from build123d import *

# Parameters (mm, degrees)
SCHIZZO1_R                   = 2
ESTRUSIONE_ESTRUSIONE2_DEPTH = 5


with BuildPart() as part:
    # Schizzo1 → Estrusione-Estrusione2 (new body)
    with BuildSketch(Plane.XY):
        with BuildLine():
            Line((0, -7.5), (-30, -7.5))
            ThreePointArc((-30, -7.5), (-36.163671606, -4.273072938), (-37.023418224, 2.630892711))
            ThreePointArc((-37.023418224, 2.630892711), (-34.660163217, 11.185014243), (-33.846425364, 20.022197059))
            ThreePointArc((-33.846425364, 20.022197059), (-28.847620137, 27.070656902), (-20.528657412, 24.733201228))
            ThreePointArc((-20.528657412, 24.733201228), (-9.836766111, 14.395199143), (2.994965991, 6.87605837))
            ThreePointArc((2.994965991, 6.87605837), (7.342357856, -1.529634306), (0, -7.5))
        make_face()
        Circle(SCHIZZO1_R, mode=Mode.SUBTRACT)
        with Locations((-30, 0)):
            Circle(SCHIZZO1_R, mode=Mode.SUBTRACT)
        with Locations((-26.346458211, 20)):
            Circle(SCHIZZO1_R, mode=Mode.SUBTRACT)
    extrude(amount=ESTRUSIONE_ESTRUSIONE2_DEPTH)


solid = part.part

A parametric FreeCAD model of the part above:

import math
import FreeCAD as App
import Part
import Sketcher
from FreeCAD import Vector
Q = App.Units.Quantity

doc = App.newDocument("Part")
body = doc.addObject("PartDesign::Body", "Body")

# Sketch on XY plane
sketch1 = body.newObject("Sketcher::SketchObject", "Sketch")
sketch1.AttachmentSupport = (doc.getObject("XY_Plane"), [""])
sketch1.MapMode = "FlatFace"
sketch1.addGeometry([
    Part.LineSegment(Vector(-30, -7.5, 0), Vector(0, -7.5, 0)),  # 0
    Part.ArcOfCircle(Part.Circle(Vector(0, 0, 0), Vector(0, 0, 1), 7.5), math.radians(-90), math.radians(66.463775)),  # 1
    Part.ArcOfCircle(Part.Circle(Vector(27.953016, 64.176545, 0), Vector(0, 0, 1), 62.5), math.radians(-140.869155), math.radians(-113.536225)),  # 2
    Part.ArcOfCircle(Part.Circle(Vector(-26.346458, 20, 0), Vector(0, 0, 1), 7.5), math.radians(39.130845), math.radians(179.830427)),  # 3
    Part.ArcOfCircle(Part.Circle(Vector(-83.846206, 20.170177, 0), Vector(0, 0, 1), 50), math.radians(-20.535379), math.radians(-0.169573)),  # 4
    Part.ArcOfCircle(Part.Circle(Vector(-30, 0, 0), Vector(0, 0, 1), 7.5), math.radians(159.464621), math.radians(270)),  # 5
    Part.Circle(Vector(0, 0, 0), Vector(0, 0, 1), 2),  # 6
    Part.Circle(Vector(-30, 0, 0), Vector(0, 0, 1), 2),  # 7
    Part.Circle(Vector(-26.346458, 20, 0), Vector(0, 0, 1), 2),  # 8
], False)
sketch1.addConstraint([
    Sketcher.Constraint("Tangent", 0, 2, 1, 1),
    Sketcher.Constraint("Tangent", 1, 2, 2, 2),
    Sketcher.Constraint("Tangent", 2, 1, 3, 1),
    Sketcher.Constraint("Tangent", 3, 2, 4, 2),
    Sketcher.Constraint("Tangent", 4, 1, 5, 1),
    Sketcher.Constraint("Tangent", 5, 2, 0, 1),
    Sketcher.Constraint("Horizontal", 0),
    Sketcher.Constraint("Coincident", 1, 3, -1, 1),
    Sketcher.Constraint("Coincident", 6, 3, -1, 1),
    Sketcher.Constraint("Coincident", 7, 3, 5, 3),
    Sketcher.Constraint("Coincident", 8, 3, 3, 3),
    Sketcher.Constraint("Equal", 1, 3),
    Sketcher.Constraint("Equal", 3, 5),
    Sketcher.Constraint("Equal", 6, 7),
    Sketcher.Constraint("Equal", 7, 8),
    Sketcher.Constraint("Diameter", 6, Q("4 mm")),
    Sketcher.Constraint("Radius", 4, Q("50 mm")),
    Sketcher.Constraint("Radius", 1, Q("7.5 mm")),
    Sketcher.Constraint("Radius", 2, Q("62.5 mm")),
    Sketcher.Constraint("DistanceX", 0, 1, 0, 2, Q("30 mm")),
    Sketcher.Constraint("DistanceY", -1, 1, 3, 3, Q("20 mm")),
    Sketcher.Constraint("DistanceX", 3, 3, -1, 1, Q("26.346458 mm")),
])
pad1 = body.newObject("PartDesign::Pad", "Pad")
pad1.Profile = sketch1
pad1.Length = 5

doc.recompute()
